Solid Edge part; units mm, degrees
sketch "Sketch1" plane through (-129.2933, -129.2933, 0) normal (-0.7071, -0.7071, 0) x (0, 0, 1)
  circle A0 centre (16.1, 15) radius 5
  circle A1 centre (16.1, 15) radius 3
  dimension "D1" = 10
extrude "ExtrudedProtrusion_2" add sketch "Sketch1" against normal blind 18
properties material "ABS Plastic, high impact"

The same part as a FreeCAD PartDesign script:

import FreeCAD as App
import Part
import Sketcher

V = App.Vector
Q = App.Units.Quantity

doc = App.newDocument("Part")
body = doc.addObject("PartDesign::Body", "Body")

# Sketch on an angled plane
sketch1 = body.newObject("Sketcher::SketchObject", "Sketch")
sketch1.Placement = App.Placement(V(-129.2933, -129.2933, 0), App.Rotation(V(0, 0, 1), V(-0.707106781, 0.707106781, 0), V(-0.707106781, -0.707106781, 0), "ZXY"))
sketch1.addGeometry([
    Part.Circle(V(16.1, 15, 0), V(0, 0, 1), 5),
    Part.Circle(V(16.1, 15, 0), V(0, 0, 1), 3),
], False)
sketch1.addConstraint([
    Sketcher.Constraint("Coincident", 1, 3, 0, 3),
    Sketcher.Constraint("Diameter", 0, Q("10 mm")),
    Sketcher.Constraint("Diameter", 1, Q("6 mm")),
    Sketcher.Constraint("DistanceY", -1, 1, 0, 3, Q("15 mm")),
    Sketcher.Constraint("DistanceX", -1, 1, 0, 3, Q("16.1 mm")),
])
pad1 = body.newObject("PartDesign::Pad", "Pad")
pad1.Profile = sketch1
pad1.Length = 18
pad1.Reversed = True

doc.recompute()
